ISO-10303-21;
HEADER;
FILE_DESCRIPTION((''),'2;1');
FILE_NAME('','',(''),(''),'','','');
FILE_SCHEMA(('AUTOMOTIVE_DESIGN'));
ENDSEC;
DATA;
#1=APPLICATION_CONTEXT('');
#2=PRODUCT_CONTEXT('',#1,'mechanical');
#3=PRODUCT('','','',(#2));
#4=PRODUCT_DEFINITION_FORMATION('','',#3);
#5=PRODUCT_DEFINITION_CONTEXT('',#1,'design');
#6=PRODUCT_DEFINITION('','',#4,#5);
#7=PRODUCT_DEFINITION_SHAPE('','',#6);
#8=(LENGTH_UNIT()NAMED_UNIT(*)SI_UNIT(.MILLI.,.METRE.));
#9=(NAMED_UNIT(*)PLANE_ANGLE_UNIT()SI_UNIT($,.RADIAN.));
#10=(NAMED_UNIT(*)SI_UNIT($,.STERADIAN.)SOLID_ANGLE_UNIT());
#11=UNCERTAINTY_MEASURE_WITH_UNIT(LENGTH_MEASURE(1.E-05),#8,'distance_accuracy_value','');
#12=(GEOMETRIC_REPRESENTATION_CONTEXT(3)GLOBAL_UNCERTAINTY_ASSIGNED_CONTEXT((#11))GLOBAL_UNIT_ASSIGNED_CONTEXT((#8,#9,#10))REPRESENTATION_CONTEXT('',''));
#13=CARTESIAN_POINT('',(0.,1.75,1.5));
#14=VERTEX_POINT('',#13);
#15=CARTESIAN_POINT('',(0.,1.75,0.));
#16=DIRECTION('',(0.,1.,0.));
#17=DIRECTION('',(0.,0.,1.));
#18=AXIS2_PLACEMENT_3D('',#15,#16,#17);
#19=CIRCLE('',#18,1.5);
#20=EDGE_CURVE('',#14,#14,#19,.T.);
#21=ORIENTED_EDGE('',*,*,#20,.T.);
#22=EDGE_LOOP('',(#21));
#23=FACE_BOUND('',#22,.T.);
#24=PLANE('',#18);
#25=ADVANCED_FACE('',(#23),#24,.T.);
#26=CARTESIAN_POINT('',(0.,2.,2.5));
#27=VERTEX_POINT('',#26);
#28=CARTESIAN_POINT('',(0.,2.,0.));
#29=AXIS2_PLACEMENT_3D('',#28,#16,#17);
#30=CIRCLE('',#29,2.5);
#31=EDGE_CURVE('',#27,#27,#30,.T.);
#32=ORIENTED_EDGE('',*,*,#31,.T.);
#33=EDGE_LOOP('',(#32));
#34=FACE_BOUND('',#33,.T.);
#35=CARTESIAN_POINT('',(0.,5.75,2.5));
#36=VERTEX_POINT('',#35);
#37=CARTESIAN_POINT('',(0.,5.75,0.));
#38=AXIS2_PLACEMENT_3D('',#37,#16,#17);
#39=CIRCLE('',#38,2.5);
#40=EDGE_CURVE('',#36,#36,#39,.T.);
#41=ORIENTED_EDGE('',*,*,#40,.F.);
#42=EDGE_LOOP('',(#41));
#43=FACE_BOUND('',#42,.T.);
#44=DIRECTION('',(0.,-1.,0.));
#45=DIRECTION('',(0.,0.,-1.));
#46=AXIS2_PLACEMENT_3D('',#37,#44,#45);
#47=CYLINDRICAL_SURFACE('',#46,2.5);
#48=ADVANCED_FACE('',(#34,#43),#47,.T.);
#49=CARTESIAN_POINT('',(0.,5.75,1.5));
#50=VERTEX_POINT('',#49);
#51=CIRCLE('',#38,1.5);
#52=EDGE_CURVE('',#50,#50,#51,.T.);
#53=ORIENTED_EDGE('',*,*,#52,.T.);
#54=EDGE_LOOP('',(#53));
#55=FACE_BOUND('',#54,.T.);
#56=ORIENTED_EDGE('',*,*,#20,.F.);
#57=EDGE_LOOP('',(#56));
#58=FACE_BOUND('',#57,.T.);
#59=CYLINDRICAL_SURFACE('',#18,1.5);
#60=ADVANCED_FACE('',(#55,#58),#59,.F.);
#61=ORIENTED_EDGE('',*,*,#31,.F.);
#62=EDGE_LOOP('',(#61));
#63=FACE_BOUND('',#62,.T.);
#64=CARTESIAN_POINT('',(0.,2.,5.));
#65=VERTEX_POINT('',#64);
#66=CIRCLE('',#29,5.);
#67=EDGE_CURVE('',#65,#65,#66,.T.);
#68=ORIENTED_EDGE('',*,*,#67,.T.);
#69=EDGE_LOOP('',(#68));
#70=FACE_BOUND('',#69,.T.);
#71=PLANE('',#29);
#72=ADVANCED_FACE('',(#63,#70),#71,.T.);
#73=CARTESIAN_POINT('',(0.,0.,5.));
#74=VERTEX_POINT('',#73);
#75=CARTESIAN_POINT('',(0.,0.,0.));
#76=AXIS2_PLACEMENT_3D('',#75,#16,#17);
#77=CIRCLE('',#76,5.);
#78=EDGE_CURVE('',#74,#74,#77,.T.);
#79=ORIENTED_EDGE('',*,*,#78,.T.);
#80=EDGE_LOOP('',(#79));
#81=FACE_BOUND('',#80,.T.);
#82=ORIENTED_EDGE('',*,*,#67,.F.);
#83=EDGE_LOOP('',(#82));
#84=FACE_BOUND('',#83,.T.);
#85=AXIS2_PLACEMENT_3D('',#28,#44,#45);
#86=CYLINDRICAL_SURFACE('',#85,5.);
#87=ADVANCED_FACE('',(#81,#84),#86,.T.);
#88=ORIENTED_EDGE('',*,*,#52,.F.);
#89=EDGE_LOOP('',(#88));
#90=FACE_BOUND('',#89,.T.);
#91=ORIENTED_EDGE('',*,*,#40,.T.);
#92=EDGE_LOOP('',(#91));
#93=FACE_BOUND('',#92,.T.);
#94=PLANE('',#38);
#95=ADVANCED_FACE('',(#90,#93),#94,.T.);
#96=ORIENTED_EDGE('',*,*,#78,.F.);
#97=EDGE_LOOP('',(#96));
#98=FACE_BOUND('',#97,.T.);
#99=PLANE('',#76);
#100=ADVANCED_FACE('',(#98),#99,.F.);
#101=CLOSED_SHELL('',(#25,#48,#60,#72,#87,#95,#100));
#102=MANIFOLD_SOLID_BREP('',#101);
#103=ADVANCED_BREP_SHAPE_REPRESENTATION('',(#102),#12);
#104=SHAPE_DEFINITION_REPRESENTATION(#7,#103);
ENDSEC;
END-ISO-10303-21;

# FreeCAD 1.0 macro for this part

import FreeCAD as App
import Part
import Sketcher

V = App.Vector
Q = App.Units.Quantity

doc = App.newDocument("Part")
params = doc.addObject("Spreadsheet::Sheet", "Params")
for row, (alias, value) in enumerate([
    ("sketch1_diameter", "10 mm"),
    ("pad1_length", "2 mm"),
    ("sketch2_diameter", "5 mm"),
    ("pad2_length", "3.75 mm"),
    ("sketch3_diameter", "3 mm"),
    ("pocket1_length", "4 mm"),
], start=1):
    params.set(f"A{row}", alias)
    params.set(f"B{row}", "=" + value)
    params.setAlias(f"B{row}", alias)

body = doc.addObject("PartDesign::Body", "Body")

# Sketch on XZ plane
sketch1 = body.newObject("Sketcher::SketchObject", "Sketch")
sketch1.AttachmentSupport = (doc.getObject("XZ_Plane"), [""])
sketch1.MapMode = "FlatFace"
sketch1.addGeometry(Part.Circle(V(0, 0, 0), V(0, 0, 1), 5), False)
sketch1.addConstraint([
    Sketcher.Constraint("Coincident", 0, 3, -1, 1),
    Sketcher.Constraint("Diameter", 0, Q("10 mm")),
])
sketch1.setExpression("Constraints[1]", "Params.sketch1_diameter")
pad1 = body.newObject("PartDesign::Pad", "Pad")
pad1.Profile = sketch1
pad1.setExpression("Length", "Params.pad1_length")
pad1.Reversed = True

# Sketch on XZ plane
sketch2 = body.newObject("Sketcher::SketchObject", "Sketch001")
sketch2.AttachmentSupport = (doc.getObject("XZ_Plane"), [""])
sketch2.MapMode = "FlatFace"
sketch2.AttachmentOffset = App.Placement(V(0, 0, -2), App.Rotation())
sketch2.addGeometry(Part.Circle(V(0, 0, 0), V(0, 0, 1), 2.5), False)
sketch2.addConstraint([
    Sketcher.Constraint("Coincident", 0, 3, -1, 1),
    Sketcher.Constraint("Diameter", 0, Q("5 mm")),
])
sketch2.setExpression("Constraints[1]", "Params.sketch2_diameter")
pad2 = body.newObject("PartDesign::Pad", "Pad001")
pad2.Profile = sketch2
pad2.setExpression("Length", "Params.pad2_length")
pad2.Reversed = True

# Sketch on XZ plane
sketch3 = body.newObject("Sketcher::SketchObject", "Sketch002")
sketch3.AttachmentSupport = (doc.getObject("XZ_Plane"), [""])
sketch3.MapMode = "FlatFace"
sketch3.AttachmentOffset = App.Placement(V(0, 0, -5.75), App.Rotation())
sketch3.addGeometry(Part.Circle(V(0, 0, 0), V(0, 0, 1), 1.5), False)
sketch3.addConstraint([
    Sketcher.Constraint("Coincident", 0, 3, -1, 1),
    Sketcher.Constraint("Diameter", 0, Q("3 mm")),
])
sketch3.setExpression("Constraints[1]", "Params.sketch3_diameter")
pocket1 = body.newObject("PartDesign::Pocket", "Pocket")
pocket1.Profile = sketch3
pocket1.setExpression("Length", "Params.pocket1_length")
pocket1.Reversed = True

doc.recompute()
